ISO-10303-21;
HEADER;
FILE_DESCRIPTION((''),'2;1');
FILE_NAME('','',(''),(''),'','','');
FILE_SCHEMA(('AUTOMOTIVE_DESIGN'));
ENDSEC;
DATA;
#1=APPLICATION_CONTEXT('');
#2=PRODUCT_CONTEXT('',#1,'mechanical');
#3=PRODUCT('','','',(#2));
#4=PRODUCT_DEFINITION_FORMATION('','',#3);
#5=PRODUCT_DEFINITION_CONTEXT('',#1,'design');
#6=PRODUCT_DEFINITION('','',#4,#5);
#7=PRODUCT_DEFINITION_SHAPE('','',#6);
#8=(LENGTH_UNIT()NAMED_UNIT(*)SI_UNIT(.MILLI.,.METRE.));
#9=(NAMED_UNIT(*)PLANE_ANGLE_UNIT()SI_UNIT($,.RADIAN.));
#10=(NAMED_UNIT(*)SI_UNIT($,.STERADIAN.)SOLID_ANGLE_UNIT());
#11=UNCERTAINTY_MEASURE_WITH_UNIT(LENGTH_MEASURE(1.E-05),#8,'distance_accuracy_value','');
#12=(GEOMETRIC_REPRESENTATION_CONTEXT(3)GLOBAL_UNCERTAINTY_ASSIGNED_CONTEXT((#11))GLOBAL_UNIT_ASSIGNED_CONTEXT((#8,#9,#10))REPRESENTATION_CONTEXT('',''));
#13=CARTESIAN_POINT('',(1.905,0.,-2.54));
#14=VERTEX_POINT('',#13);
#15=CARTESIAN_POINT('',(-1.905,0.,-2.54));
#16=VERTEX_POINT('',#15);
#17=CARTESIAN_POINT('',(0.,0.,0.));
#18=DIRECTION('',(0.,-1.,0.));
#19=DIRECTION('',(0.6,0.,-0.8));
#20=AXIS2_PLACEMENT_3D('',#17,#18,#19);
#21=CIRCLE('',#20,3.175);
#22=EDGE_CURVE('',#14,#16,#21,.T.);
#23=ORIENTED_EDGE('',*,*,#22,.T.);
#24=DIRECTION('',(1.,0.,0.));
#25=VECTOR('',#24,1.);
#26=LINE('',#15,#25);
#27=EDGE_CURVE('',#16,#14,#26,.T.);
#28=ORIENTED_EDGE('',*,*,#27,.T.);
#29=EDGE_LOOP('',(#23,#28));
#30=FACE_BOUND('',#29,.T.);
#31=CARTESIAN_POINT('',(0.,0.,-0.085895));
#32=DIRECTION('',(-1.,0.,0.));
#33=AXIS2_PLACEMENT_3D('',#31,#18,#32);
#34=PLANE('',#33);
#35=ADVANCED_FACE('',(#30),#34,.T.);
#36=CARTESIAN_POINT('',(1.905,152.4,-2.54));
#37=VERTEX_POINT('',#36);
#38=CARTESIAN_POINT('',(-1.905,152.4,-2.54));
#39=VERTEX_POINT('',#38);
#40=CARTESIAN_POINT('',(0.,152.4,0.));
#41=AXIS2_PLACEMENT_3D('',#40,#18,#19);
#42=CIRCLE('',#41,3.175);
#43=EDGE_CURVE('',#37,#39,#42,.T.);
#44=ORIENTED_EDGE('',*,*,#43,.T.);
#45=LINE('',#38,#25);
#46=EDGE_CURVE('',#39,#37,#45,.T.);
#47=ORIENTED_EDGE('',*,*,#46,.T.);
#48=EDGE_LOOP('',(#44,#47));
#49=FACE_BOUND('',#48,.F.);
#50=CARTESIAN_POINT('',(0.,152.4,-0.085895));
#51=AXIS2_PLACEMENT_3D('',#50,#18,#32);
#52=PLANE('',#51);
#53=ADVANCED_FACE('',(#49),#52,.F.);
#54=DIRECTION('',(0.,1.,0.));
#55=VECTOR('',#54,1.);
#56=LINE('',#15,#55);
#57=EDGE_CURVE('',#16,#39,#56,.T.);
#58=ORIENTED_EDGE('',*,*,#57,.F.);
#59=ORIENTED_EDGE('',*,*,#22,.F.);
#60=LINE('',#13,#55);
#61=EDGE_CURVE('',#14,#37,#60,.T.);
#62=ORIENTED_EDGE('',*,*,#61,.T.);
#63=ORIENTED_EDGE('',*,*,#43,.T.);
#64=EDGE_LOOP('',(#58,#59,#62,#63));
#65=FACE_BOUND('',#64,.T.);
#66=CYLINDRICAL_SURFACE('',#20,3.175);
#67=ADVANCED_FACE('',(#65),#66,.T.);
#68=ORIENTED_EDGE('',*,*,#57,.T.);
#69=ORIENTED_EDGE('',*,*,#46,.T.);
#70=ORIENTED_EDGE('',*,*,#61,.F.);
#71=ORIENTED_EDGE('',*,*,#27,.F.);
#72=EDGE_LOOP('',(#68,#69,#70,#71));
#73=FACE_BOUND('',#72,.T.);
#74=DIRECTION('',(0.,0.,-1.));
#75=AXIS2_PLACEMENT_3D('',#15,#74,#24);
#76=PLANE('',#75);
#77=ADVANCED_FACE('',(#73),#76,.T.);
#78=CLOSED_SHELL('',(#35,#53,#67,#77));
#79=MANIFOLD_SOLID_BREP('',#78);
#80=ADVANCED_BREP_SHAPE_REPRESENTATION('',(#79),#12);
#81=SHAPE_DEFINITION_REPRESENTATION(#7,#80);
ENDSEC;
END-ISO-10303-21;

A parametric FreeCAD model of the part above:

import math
import FreeCAD as App
import Part
import Sketcher
Q = App.Units.Quantity

doc = App.newDocument("Part")
body = doc.addObject("PartDesign::Body", "Body")

sketch1 = body.newObject("Sketcher::SketchObject", "Sketch")
sketch1.AttachmentSupport = (doc.getObject("XZ_Plane"), [""])
sketch1.MapMode = "FlatFace"
sketch1.addGeometry([
    Part.LineSegment(App.Vector(1.905, -2.54, 0), App.Vector(-1.905, -2.54, 0)),
    Part.ArcOfCircle(Part.Circle(App.Vector(0, 0, 0), App.Vector(0, 0, 1), 3.175), math.radians(-53.130102), math.radians(233.130102)),
], False)
sketch1.addConstraint([
    Sketcher.Constraint("Coincident", 0, 1, 1, 1),
    Sketcher.Constraint("Coincident", 1, 2, 0, 2),
    Sketcher.Constraint("Horizontal", 0),
    Sketcher.Constraint("Coincident", 1, 3, -1, 1),
    Sketcher.Constraint("Radius", 1, Q("0.125 in")),
    Sketcher.Constraint("DistanceX", 0, 2, 0, 1, Q("0.15 in")),
])
pad1 = body.newObject("PartDesign::Pad", "Pad")
pad1.Profile = sketch1
pad1.Length = Q("6 in")
pad1.Reversed = True

doc.recompute()
